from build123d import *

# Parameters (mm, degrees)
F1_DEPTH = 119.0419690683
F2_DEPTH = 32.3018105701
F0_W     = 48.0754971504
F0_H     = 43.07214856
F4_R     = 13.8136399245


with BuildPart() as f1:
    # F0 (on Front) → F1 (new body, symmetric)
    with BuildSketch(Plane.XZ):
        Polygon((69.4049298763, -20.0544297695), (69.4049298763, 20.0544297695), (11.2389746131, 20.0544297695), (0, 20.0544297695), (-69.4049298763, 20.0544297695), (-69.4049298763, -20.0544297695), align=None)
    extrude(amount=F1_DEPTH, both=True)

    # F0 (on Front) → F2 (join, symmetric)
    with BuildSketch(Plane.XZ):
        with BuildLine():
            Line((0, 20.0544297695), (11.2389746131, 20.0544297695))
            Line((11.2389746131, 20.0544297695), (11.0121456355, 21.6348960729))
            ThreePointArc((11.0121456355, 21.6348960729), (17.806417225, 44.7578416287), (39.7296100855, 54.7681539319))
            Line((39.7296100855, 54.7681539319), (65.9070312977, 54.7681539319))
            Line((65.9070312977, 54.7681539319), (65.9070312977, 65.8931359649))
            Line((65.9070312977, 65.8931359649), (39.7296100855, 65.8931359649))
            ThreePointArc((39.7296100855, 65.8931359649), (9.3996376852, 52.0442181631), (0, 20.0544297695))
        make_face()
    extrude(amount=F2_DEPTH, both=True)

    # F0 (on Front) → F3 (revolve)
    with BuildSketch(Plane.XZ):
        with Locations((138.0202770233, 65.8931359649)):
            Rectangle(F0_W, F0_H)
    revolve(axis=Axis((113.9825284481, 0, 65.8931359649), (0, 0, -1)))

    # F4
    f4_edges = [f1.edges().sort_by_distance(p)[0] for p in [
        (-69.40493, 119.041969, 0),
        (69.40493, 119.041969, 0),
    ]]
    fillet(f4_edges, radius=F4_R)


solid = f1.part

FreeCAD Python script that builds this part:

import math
import FreeCAD as App
import Part
import Sketcher
from FreeCAD import Vector
Q = App.Units.Quantity


def edges_at(feature, points):
    """Names of the edges that pass closest to the given points."""
    edges = feature.Shape.Edges
    near = lambda p: min(range(len(edges)), key=lambda i: edges[i].distToShape(Part.Vertex(*p))[0])
    return sorted({f"Edge{near(p) + 1}" for p in points})


def add_polygon(sketch, points):
    """Adds a closed chain of lines whose ends are joined by coincident constraints."""
    first, n = sketch.GeometryCount, len(points)
    for a, b in zip(points, points[1:] + points[:1]):
        sketch.addGeometry(Part.LineSegment(App.Vector(*a, 0), App.Vector(*b, 0)), False)
    for i in range(n):
        sketch.addConstraint(Sketcher.Constraint("Coincident", first + i, 2, first + (i + 1) % n, 1))

doc = App.newDocument("Part")
params = doc.addObject("Spreadsheet::Sheet", "Params")
for row, (alias, value) in enumerate([
    ("pad1_length", "238.083938 mm"),
    ("pad2_length", "64.603621 mm"),
    ("revolution_angle", "360 deg"),
    ("fillet_radius", "13.81364 mm"),
], start=1):
    params.set(f"A{row}", alias)
    params.set(f"B{row}", "=" + value)
    params.setAlias(f"B{row}", alias)

body = doc.addObject("PartDesign::Body", "Body")
body.AllowCompound = True

sketch1 = doc.addObject("Sketcher::SketchObject", "Sketch")
body.addObject(sketch1)
sketch1.AttachmentSupport = (doc.XZ_Plane, [""])
sketch1.MapMode = "FlatFace"
add_polygon(sketch1, [(69, -20), (69, 20), (-69, 20), (-69, -20)])
sketch1.addConstraint(Sketcher.Constraint("Vertical", 0))
sketch1.addConstraint(Sketcher.Constraint("Horizontal", 1))
sketch1.addConstraint(Sketcher.Constraint("Vertical", 2))
sketch1.addConstraint(Sketcher.Constraint("Horizontal", 3))
sketch1.addConstraint(Sketcher.Constraint("Symmetric", 0, 2, 2, 2, -1, 1))
sketch1.addConstraint(Sketcher.Constraint("DistanceX", 1, 2, 1, 1, Q("138.80986 mm")))
sketch1.addConstraint(Sketcher.Constraint("DistanceY", 0, 1, 0, 2, Q("40.10886 mm")))
pad1 = doc.addObject("PartDesign::Pad", "Pad")
body.addObject(pad1)
pad1.Profile = sketch1
pad1.setExpression("Length", "Params.pad1_length")
pad1.Midplane = True

sketch2 = doc.addObject("Sketcher::SketchObject", "Sketch001")
body.addObject(sketch2)
sketch2.AttachmentSupport = (doc.XZ_Plane, [""])
sketch2.MapMode = "FlatFace"
sketch2.addGeometry(Part.LineSegment(Vector(0, 20.1, 0), Vector(11.2, 20.1, 0)), False)
sketch2.addGeometry(Part.LineSegment(Vector(11.2, 20.1, 0), Vector(11, 21.6, 0)), False)
sketch2.addGeometry(Part.ArcOfCircle(Part.Circle(Vector(39.7, 25.8, 0), Vector(0, 0, 1), 29), math.radians(90), math.radians(188)), False)
sketch2.addGeometry(Part.LineSegment(Vector(39.7, 54.8, 0), Vector(65.9, 54.8, 0)), False)
sketch2.addGeometry(Part.LineSegment(Vector(65.9, 54.8, 0), Vector(65.9, 65.9, 0)), False)
sketch2.addGeometry(Part.LineSegment(Vector(65.9, 65.9, 0), Vector(39.7, 65.9, 0)), False)
sketch2.addGeometry(Part.ArcOfCircle(Part.Circle(Vector(39.7, 25.8, 0), Vector(0, 0, 1), 40.1), math.radians(90), math.radians(188)), False)
sketch2.addConstraint(Sketcher.Constraint("Coincident", 0, 2, 1, 1))
sketch2.addConstraint(Sketcher.Constraint("Tangent", 1, 2, 2, 2))
sketch2.addConstraint(Sketcher.Constraint("Tangent", 2, 1, 3, 1))
sketch2.addConstraint(Sketcher.Constraint("Coincident", 3, 2, 4, 1))
sketch2.addConstraint(Sketcher.Constraint("Coincident", 4, 2, 5, 1))
sketch2.addConstraint(Sketcher.Constraint("Tangent", 5, 2, 6, 1))
sketch2.addConstraint(Sketcher.Constraint("Coincident", 6, 2, 0, 1))
sketch2.addConstraint(Sketcher.Constraint("Horizontal", 0))
sketch2.addConstraint(Sketcher.Constraint("Horizontal", 3))
sketch2.addConstraint(Sketcher.Constraint("Vertical", 4))
sketch2.addConstraint(Sketcher.Constraint("Horizontal", 5))
sketch2.addConstraint(Sketcher.Constraint("Coincident", 6, 3, 2, 3))
sketch2.addConstraint(Sketcher.Constraint("PointOnObject", 6, 2, -2))
sketch2.addConstraint(Sketcher.Constraint("Radius", 6, Q("40.136701 mm")))
sketch2.addConstraint(Sketcher.Constraint("Radius", 2, Q("29.011719 mm")))
sketch2.addConstraint(Sketcher.Constraint("DistanceX", 3, 1, 3, 2, Q("26.177421 mm")))
sketch2.addConstraint(Sketcher.Constraint("Distance", 1, Q("1.596661 mm")))
sketch2.addConstraint(Sketcher.Constraint("DistanceX", 0, 1, 0, 2, Q("11.238975 mm")))
sketch2.addConstraint(Sketcher.Constraint("DistanceY", -1, 1, 0, 2, Q("20.05443 mm")))
pad2 = doc.addObject("PartDesign::Pad", "Pad001")
body.addObject(pad2)
pad2.Profile = sketch2
pad2.setExpression("Length", "Params.pad2_length")
pad2.Midplane = True

sketch3 = doc.addObject("Sketcher::SketchObject", "Sketch002")
body.addObject(sketch3)
sketch3.AttachmentSupport = (doc.XZ_Plane, [""])
sketch3.MapMode = "FlatFace"
add_polygon(sketch3, [(114, 87), (114, 44), (162, 44), (162, 87)])
sketch3.addGeometry(Part.LineSegment(Vector(114, 87, 0), Vector(114, 44, 0)), True)
sketch3.addConstraint(Sketcher.Constraint("Vertical", 0))
sketch3.addConstraint(Sketcher.Constraint("Horizontal", 1))
sketch3.addConstraint(Sketcher.Constraint("Vertical", 2))
sketch3.addConstraint(Sketcher.Constraint("Horizontal", 3))
sketch3.addConstraint(Sketcher.Constraint("Vertical", 4))
sketch3.addConstraint(Sketcher.Constraint("Coincident", 4, 1, 3, 2))
sketch3.addConstraint(Sketcher.Constraint("Horizontal", 1, 2, 4, 2))
sketch3.addConstraint(Sketcher.Constraint("DistanceY", 0, 2, 0, 1, Q("43.072149 mm")))
sketch3.addConstraint(Sketcher.Constraint("DistanceX", 1, 1, 1, 2, Q("48.075497 mm")))
sketch3.addConstraint(Sketcher.Constraint("DistanceX", -1, 1, 0, 2, Q("113.982528 mm")))
sketch3.addConstraint(Sketcher.Constraint("DistanceY", -1, 1, 0, 2, Q("44.357062 mm")))
revolution = doc.addObject("PartDesign::Revolution", "Revolution")
body.addObject(revolution)
revolution.Profile = sketch3
revolution.ReferenceAxis = (sketch3, ["Axis0"])
revolution.setExpression("Angle", "Params.revolution_angle")
doc.recompute()

fillet = doc.addObject("PartDesign::Fillet", "Fillet")
body.addObject(fillet)
fillet.Base = (revolution, edges_at(revolution, [(-69.405, 119.042, 0), (69.405, 119.042, 0)]))
fillet.setExpression("Radius", "Params.fillet_radius")

doc.recompute()
